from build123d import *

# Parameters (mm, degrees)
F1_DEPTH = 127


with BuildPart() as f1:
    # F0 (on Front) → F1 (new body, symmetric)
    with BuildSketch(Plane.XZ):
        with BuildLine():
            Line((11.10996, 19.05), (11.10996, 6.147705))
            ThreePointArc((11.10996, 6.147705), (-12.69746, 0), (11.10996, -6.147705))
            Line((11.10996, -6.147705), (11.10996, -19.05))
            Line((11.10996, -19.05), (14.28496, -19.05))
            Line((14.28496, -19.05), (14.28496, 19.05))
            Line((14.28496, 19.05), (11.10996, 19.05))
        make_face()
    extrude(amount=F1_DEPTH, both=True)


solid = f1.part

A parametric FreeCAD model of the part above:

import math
import FreeCAD as App
import Part
import Sketcher
Q = App.Units.Quantity

doc = App.newDocument("Part")
params = doc.addObject("Spreadsheet::Sheet", "Params")
for row, (alias, value) in enumerate([
    ("sketch1_height", "1.5 in"),
    ("sketch1_width", "0.125 in"),
    ("pad1_length", "10 in"),
], start=1):
    params.set(f"A{row}", alias)
    params.set(f"B{row}", "=" + value)
    params.setAlias(f"B{row}", alias)

body = doc.addObject("PartDesign::Body", "Body")

# Sketch on XZ plane
sketch1 = body.newObject("Sketcher::SketchObject", "Sketch")
sketch1.AttachmentSupport = (doc.getObject("XZ_Plane"), [""])
sketch1.MapMode = "FlatFace"
sketch1.addGeometry([
    Part.LineSegment(App.Vector(11.10996, 19.05, 0), App.Vector(11.10996, 6.147705, 0)),  # 0
    Part.ArcOfCircle(Part.Circle(App.Vector(0, 0, 0), App.Vector(0, 0, 1), 12.69746), math.radians(28.957983), math.radians(331.042017)),  # 1
    Part.LineSegment(App.Vector(11.10996, -6.147705, 0), App.Vector(11.10996, -19.05, 0)),  # 2
    Part.LineSegment(App.Vector(11.10996, -19.05, 0), App.Vector(14.28496, -19.05, 0)),  # 3
    Part.LineSegment(App.Vector(14.28496, -19.05, 0), App.Vector(14.28496, 19.05, 0)),  # 4
    Part.LineSegment(App.Vector(14.28496, 19.05, 0), App.Vector(11.10996, 19.05, 0)),  # 5
], False)
sketch1.addConstraint([
    Sketcher.Constraint("Coincident", 0, 2, 1, 1),
    Sketcher.Constraint("Coincident", 1, 2, 2, 1),
    Sketcher.Constraint("Coincident", 2, 2, 3, 1),
    Sketcher.Constraint("Coincident", 3, 2, 4, 1),
    Sketcher.Constraint("Coincident", 4, 2, 5, 1),
    Sketcher.Constraint("Coincident", 5, 2, 0, 1),
    Sketcher.Constraint("Vertical", 0),
    Sketcher.Constraint("Vertical", 2),
    Sketcher.Constraint("Horizontal", 3),
    Sketcher.Constraint("Vertical", 4),
    Sketcher.Constraint("Horizontal", 5),
    Sketcher.Constraint("Coincident", 1, 3, -1, 1),
    Sketcher.Constraint("Symmetric", 2, 2, 5, 2, -1),
    Sketcher.Constraint("DistanceY", 4, 1, 4, 2, Q("1.5 in")),
    Sketcher.Constraint("Radius", 1, Q("0.4999 in")),
    Sketcher.Constraint("DistanceX", 3, 1, 3, 2, Q("0.125 in")),
    Sketcher.Constraint("DistanceX", -1, 1, 0, 2, Q("0.4374 in")),
])
sketch1.setExpression("Constraints[13]", "Params.sketch1_height")
sketch1.setExpression("Constraints[15]", "Params.sketch1_width")
pad1 = body.newObject("PartDesign::Pad", "Pad")
pad1.Profile = sketch1
pad1.setExpression("Length", "Params.pad1_length")
pad1.Midplane = True

doc.recompute()
